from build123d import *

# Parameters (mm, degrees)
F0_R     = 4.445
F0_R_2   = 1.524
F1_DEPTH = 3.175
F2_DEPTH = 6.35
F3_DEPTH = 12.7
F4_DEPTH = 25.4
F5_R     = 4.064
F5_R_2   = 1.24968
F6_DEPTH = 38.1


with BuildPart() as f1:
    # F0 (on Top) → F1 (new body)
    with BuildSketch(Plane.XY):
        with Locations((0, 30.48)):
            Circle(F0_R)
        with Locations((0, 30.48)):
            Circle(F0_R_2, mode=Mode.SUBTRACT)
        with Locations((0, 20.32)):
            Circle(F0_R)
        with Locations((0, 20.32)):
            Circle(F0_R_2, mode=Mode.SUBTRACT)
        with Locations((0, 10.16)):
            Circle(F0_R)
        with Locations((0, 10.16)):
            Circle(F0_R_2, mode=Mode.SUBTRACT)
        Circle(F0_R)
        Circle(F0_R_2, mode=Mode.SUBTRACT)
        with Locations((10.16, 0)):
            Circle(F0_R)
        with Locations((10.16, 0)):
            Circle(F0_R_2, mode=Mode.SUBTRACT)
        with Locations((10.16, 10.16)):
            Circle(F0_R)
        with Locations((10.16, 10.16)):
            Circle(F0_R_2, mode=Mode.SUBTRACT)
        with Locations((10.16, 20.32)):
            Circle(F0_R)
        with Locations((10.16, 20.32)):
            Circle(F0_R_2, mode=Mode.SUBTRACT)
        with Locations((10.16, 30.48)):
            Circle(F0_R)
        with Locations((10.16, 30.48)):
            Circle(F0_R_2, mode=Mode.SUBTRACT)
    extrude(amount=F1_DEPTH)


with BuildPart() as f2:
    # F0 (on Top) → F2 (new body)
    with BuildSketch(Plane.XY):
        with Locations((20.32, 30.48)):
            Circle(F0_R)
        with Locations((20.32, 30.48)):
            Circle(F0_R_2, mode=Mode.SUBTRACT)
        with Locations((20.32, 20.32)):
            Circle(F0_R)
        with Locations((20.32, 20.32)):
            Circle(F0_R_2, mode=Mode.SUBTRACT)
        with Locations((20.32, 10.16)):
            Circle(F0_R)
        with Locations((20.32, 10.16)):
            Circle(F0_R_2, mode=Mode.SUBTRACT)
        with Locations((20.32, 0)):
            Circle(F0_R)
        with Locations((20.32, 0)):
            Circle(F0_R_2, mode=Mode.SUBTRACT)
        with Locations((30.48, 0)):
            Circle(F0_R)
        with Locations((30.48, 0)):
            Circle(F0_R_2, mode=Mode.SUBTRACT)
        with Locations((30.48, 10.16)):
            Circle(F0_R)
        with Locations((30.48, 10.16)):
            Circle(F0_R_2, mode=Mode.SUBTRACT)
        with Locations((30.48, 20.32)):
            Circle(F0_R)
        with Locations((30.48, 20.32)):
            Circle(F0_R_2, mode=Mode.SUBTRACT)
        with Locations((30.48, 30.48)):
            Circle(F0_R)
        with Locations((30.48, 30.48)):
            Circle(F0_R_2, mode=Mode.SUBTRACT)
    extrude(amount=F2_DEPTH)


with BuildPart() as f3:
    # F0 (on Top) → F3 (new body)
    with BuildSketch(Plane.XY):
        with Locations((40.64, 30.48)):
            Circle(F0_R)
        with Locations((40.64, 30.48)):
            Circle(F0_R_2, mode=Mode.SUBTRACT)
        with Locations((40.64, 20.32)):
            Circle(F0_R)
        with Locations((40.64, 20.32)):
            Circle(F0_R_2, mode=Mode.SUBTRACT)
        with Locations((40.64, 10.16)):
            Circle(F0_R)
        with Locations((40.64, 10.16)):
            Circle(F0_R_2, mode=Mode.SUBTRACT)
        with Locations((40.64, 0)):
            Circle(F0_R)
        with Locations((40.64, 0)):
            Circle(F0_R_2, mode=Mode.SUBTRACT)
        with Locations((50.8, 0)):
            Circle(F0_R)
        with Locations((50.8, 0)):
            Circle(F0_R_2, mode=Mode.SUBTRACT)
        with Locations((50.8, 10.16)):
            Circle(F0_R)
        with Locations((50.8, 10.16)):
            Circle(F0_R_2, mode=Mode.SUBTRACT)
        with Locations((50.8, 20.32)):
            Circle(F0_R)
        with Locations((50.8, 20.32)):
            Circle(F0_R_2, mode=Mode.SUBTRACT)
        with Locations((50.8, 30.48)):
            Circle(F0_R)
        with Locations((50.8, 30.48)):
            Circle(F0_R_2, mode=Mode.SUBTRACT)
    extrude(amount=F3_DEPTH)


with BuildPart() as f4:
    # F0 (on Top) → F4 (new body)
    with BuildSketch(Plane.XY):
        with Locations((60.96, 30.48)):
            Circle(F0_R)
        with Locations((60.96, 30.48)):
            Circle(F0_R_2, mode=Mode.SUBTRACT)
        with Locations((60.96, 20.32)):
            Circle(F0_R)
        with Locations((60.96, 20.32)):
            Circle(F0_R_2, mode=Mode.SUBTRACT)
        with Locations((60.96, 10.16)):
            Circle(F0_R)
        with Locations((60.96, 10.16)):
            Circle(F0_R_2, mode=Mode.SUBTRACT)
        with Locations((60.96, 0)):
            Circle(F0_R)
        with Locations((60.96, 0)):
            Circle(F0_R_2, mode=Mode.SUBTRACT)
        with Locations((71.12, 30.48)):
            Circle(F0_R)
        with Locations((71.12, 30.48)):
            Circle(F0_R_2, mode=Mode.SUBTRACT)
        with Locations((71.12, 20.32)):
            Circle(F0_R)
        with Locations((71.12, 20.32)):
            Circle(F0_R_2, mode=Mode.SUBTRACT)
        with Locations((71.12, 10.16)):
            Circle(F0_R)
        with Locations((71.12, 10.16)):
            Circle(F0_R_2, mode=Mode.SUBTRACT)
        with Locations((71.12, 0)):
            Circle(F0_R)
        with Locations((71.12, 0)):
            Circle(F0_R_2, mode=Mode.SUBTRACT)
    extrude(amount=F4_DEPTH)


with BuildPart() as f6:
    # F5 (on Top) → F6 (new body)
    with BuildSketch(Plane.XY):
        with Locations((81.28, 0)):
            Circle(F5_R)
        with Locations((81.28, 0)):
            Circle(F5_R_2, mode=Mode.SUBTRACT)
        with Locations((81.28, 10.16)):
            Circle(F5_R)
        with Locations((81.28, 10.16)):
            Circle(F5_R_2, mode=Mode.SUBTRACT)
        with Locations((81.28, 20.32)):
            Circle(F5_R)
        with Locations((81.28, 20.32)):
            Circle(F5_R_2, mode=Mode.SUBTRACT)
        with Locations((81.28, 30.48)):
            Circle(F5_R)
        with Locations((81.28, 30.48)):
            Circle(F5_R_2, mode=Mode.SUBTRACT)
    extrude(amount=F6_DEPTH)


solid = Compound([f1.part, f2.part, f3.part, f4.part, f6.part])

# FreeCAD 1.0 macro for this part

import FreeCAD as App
import Part
import Sketcher
Q = App.Units.Quantity

doc = App.newDocument("Part")
body = doc.addObject("PartDesign::Body", "Body")
body.AllowCompound = True

# Sketch on XY plane
sketch1 = body.newObject("Sketcher::SketchObject", "Sketch")
sketch1.AttachmentSupport = (doc.getObject("XY_Plane"), [""])
sketch1.MapMode = "FlatFace"
sketch1.addGeometry([
    Part.Circle(App.Vector(0, 30.5, 0), App.Vector(0, 0, 1), 4.4),  # 0
    Part.Circle(App.Vector(0, 30.5, 0), App.Vector(0, 0, 1), 1.5),  # 1
    Part.Circle(App.Vector(0, 20.3, 0), App.Vector(0, 0, 1), 4.4),  # 2
    Part.Circle(App.Vector(0, 20.3, 0), App.Vector(0, 0, 1), 1.5),  # 3
    Part.Circle(App.Vector(0, 10.2, 0), App.Vector(0, 0, 1), 4.4),  # 4
    Part.Circle(App.Vector(0, 10.2, 0), App.Vector(0, 0, 1), 1.5),  # 5
    Part.Circle(App.Vector(0, 0, 0), App.Vector(0, 0, 1), 4.4),  # 6
    Part.Circle(App.Vector(0, 0, 0), App.Vector(0, 0, 1), 1.5),  # 7
    Part.Circle(App.Vector(10.2, 0, 0), App.Vector(0, 0, 1), 4.4),  # 8
    Part.Circle(App.Vector(10.2, 0, 0), App.Vector(0, 0, 1), 1.5),  # 9
    Part.Circle(App.Vector(10.2, 10.2, 0), App.Vector(0, 0, 1), 4.4),  # 10
    Part.Circle(App.Vector(10.2, 10.2, 0), App.Vector(0, 0, 1), 1.5),  # 11
    Part.Circle(App.Vector(10.2, 20.3, 0), App.Vector(0, 0, 1), 4.4),  # 12
    Part.Circle(App.Vector(10.2, 20.3, 0), App.Vector(0, 0, 1), 1.5),  # 13
    Part.Circle(App.Vector(10.2, 30.5, 0), App.Vector(0, 0, 1), 4.4),  # 14
    Part.Circle(App.Vector(10.2, 30.5, 0), App.Vector(0, 0, 1), 1.5),  # 15
], False)
sketch1.addConstraint([
    Sketcher.Constraint("Coincident", 6, 3, -1, 1),
    Sketcher.Constraint("Coincident", 7, 3, -1, 1),
    Sketcher.Constraint("Coincident", 1, 3, 0, 3),
    Sketcher.Constraint("Coincident", 3, 3, 2, 3),
    Sketcher.Constraint("Coincident", 5, 3, 4, 3),
    Sketcher.Constraint("Coincident", 9, 3, 8, 3),
    Sketcher.Constraint("Coincident", 11, 3, 10, 3),
    Sketcher.Constraint("Coincident", 13, 3, 12, 3),
    Sketcher.Constraint("Coincident", 15, 3, 14, 3),
    Sketcher.Constraint("Equal", 0, 2),
    Sketcher.Constraint("Equal", 1, 3),
    Sketcher.Constraint("Equal", 2, 4),
    Sketcher.Constraint("Equal", 3, 5),
    Sketcher.Constraint("Equal", 4, 6),
    Sketcher.Constraint("Equal", 5, 7),
    Sketcher.Constraint("Equal", 6, 8),
    Sketcher.Constraint("Equal", 7, 9),
    Sketcher.Constraint("Equal", 8, 10),
    Sketcher.Constraint("Equal", 9, 11),
    Sketcher.Constraint("Equal", 10, 12),
    Sketcher.Constraint("Equal", 11, 13),
    Sketcher.Constraint("Equal", 12, 14),
    Sketcher.Constraint("Equal", 13, 15),
    Sketcher.Constraint("PointOnObject", 0, 3, -2),
    Sketcher.Constraint("PointOnObject", 2, 3, -2),
    Sketcher.Constraint("PointOnObject", 4, 3, -2),
    Sketcher.Constraint("PointOnObject", 8, 3, -1),
    Sketcher.Constraint("Horizontal", 5, 3, 10, 3),
    Sketcher.Constraint("Horizontal", 3, 3, 12, 3),
    Sketcher.Constraint("Horizontal", 1, 3, 14, 3),
    Sketcher.Constraint("Vertical", 9, 3, 10, 3),
    Sketcher.Constraint("Vertical", 11, 3, 12, 3),
    Sketcher.Constraint("Vertical", 13, 3, 14, 3),
    Sketcher.Constraint("Diameter", 0, Q("0.35 in")),
    Sketcher.Constraint("Diameter", 1, Q("0.12 in")),
    Sketcher.Constraint("DistanceY", -1, 1, 0, 3, Q("1.2 in")),
    Sketcher.Constraint("DistanceY", -1, 1, 2, 3, Q("0.8 in")),
    Sketcher.Constraint("DistanceY", -1, 1, 4, 3, Q("0.4 in")),
    Sketcher.Constraint("DistanceX", -1, 1, 8, 3, Q("0.4 in")),
])
pad1 = body.newObject("PartDesign::Pad", "Pad")
pad1.Profile = sketch1
pad1.Length = Q("0.125 in")
body2 = doc.addObject("PartDesign::Body", "Body001")
body2.AllowCompound = True

# Sketch on XY plane
sketch2 = body2.newObject("Sketcher::SketchObject", "Sketch001")
sketch2.AttachmentSupport = (doc.getObject("XY_Plane001"), [""])
sketch2.MapMode = "FlatFace"
sketch2.addGeometry([
    Part.Circle(App.Vector(20.3, 30.5, 0), App.Vector(0, 0, 1), 4.4),  # 0
    Part.Circle(App.Vector(20.3, 30.5, 0), App.Vector(0, 0, 1), 1.5),  # 1
    Part.Circle(App.Vector(20.3, 20.3, 0), App.Vector(0, 0, 1), 4.4),  # 2
    Part.Circle(App.Vector(20.3, 20.3, 0), App.Vector(0, 0, 1), 1.5),  # 3
    Part.Circle(App.Vector(20.3, 10.2, 0), App.Vector(0, 0, 1), 4.4),  # 4
    Part.Circle(App.Vector(20.3, 10.2, 0), App.Vector(0, 0, 1), 1.5),  # 5
    Part.Circle(App.Vector(20.3, 0, 0), App.Vector(0, 0, 1), 4.4),  # 6
    Part.Circle(App.Vector(20.3, 0, 0), App.Vector(0, 0, 1), 1.5),  # 7
    Part.Circle(App.Vector(30.5, 0, 0), App.Vector(0, 0, 1), 4.4),  # 8
    Part.Circle(App.Vector(30.5, 0, 0), App.Vector(0, 0, 1), 1.5),  # 9
    Part.Circle(App.Vector(30.5, 10.2, 0), App.Vector(0, 0, 1), 4.4),  # 10
    Part.Circle(App.Vector(30.5, 10.2, 0), App.Vector(0, 0, 1), 1.5),  # 11
    Part.Circle(App.Vector(30.5, 20.3, 0), App.Vector(0, 0, 1), 4.4),  # 12
    Part.Circle(App.Vector(30.5, 20.3, 0), App.Vector(0, 0, 1), 1.5),  # 13
    Part.Circle(App.Vector(30.5, 30.5, 0), App.Vector(0, 0, 1), 4.4),  # 14
    Part.Circle(App.Vector(30.5, 30.5, 0), App.Vector(0, 0, 1), 1.5),  # 15
], False)
sketch2.addConstraint([
    Sketcher.Constraint("Coincident", 1, 3, 0, 3),
    Sketcher.Constraint("Coincident", 3, 3, 2, 3),
    Sketcher.Constraint("Coincident", 5, 3, 4, 3),
    Sketcher.Constraint("Coincident", 7, 3, 6, 3),
    Sketcher.Constraint("Coincident", 9, 3, 8, 3),
    Sketcher.Constraint("Coincident", 11, 3, 10, 3),
    Sketcher.Constraint("Coincident", 13, 3, 12, 3),
    Sketcher.Constraint("Coincident", 15, 3, 14, 3),
    Sketcher.Constraint("Equal", 0, 2),
    Sketcher.Constraint("Equal", 1, 3),
    Sketcher.Constraint("Equal", 2, 4),
    Sketcher.Constraint("Equal", 3, 5),
    Sketcher.Constraint("Equal", 4, 6),
    Sketcher.Constraint("Equal", 5, 7),
    Sketcher.Constraint("Equal", 6, 8),
    Sketcher.Constraint("Equal", 7, 9),
    Sketcher.Constraint("Equal", 8, 10),
    Sketcher.Constraint("Equal", 9, 11),
    Sketcher.Constraint("Equal", 10, 12),
    Sketcher.Constraint("Equal", 11, 13),
    Sketcher.Constraint("Equal", 12, 14),
    Sketcher.Constraint("Equal", 13, 15),
    Sketcher.Constraint("PointOnObject", 6, 3, -1),
    Sketcher.Constraint("PointOnObject", 8, 3, -1),
    Sketcher.Constraint("Horizontal", 5, 3, 10, 3),
    Sketcher.Constraint("Horizontal", 3, 3, 12, 3),
    Sketcher.Constraint("Horizontal", 1, 3, 14, 3),
    Sketcher.Constraint("Vertical", 1, 3, 2, 3),
    Sketcher.Constraint("Vertical", 3, 3, 4, 3),
    Sketcher.Constraint("Vertical", 5, 3, 6, 3),
    Sketcher.Constraint("Vertical", 9, 3, 10, 3),
    Sketcher.Constraint("Vertical", 11, 3, 12, 3),
    Sketcher.Constraint("Vertical", 13, 3, 14, 3),
    Sketcher.Constraint("Diameter", 0, Q("0.35 in")),
    Sketcher.Constraint("Diameter", 1, Q("0.12 in")),
    Sketcher.Constraint("DistanceX", -1, 1, 0, 3, Q("0.8 in")),
    Sketcher.Constraint("DistanceY", -1, 1, 0, 3, Q("1.2 in")),
    Sketcher.Constraint("DistanceY", -1, 1, 2, 3, Q("0.8 in")),
    Sketcher.Constraint("DistanceY", -1, 1, 4, 3, Q("0.4 in")),
    Sketcher.Constraint("DistanceX", -1, 1, 8, 3, Q("1.2 in")),
])
pad2 = body2.newObject("PartDesign::Pad", "Pad001")
pad2.Profile = sketch2
pad2.Length = Q("0.25 in")
body3 = doc.addObject("PartDesign::Body", "Body002")
body3.AllowCompound = True

# Sketch on XY plane
sketch3 = body3.newObject("Sketcher::SketchObject", "Sketch002")
sketch3.AttachmentSupport = (doc.getObject("XY_Plane002"), [""])
sketch3.MapMode = "FlatFace"
sketch3.addGeometry([
    Part.Circle(App.Vector(40.6, 30.5, 0), App.Vector(0, 0, 1), 4.4),  # 0
    Part.Circle(App.Vector(40.6, 30.5, 0), App.Vector(0, 0, 1), 1.5),  # 1
    Part.Circle(App.Vector(40.6, 20.3, 0), App.Vector(0, 0, 1), 4.4),  # 2
    Part.Circle(App.Vector(40.6, 20.3, 0), App.Vector(0, 0, 1), 1.5),  # 3
    Part.Circle(App.Vector(40.6, 10.2, 0), App.Vector(0, 0, 1), 4.4),  # 4
    Part.Circle(App.Vector(40.6, 10.2, 0), App.Vector(0, 0, 1), 1.5),  # 5
    Part.Circle(App.Vector(40.6, 0, 0), App.Vector(0, 0, 1), 4.4),  # 6
    Part.Circle(App.Vector(40.6, 0, 0), App.Vector(0, 0, 1), 1.5),  # 7
    Part.Circle(App.Vector(50.8, 0, 0), App.Vector(0, 0, 1), 4.4),  # 8
    Part.Circle(App.Vector(50.8, 0, 0), App.Vector(0, 0, 1), 1.5),  # 9
    Part.Circle(App.Vector(50.8, 10.2, 0), App.Vector(0, 0, 1), 4.4),  # 10
    Part.Circle(App.Vector(50.8, 10.2, 0), App.Vector(0, 0, 1), 1.5),  # 11
    Part.Circle(App.Vector(50.8, 20.3, 0), App.Vector(0, 0, 1), 4.4),  # 12
    Part.Circle(App.Vector(50.8, 20.3, 0), App.Vector(0, 0, 1), 1.5),  # 13
    Part.Circle(App.Vector(50.8, 30.5, 0), App.Vector(0, 0, 1), 4.4),  # 14
    Part.Circle(App.Vector(50.8, 30.5, 0), App.Vector(0, 0, 1), 1.5),  # 15
], False)
sketch3.addConstraint([
    Sketcher.Constraint("Coincident", 1, 3, 0, 3),
    Sketcher.Constraint("Coincident", 3, 3, 2, 3),
    Sketcher.Constraint("Coincident", 5, 3, 4, 3),
    Sketcher.Constraint("Coincident", 7, 3, 6, 3),
    Sketcher.Constraint("Coincident", 9, 3, 8, 3),
    Sketcher.Constraint("Coincident", 11, 3, 10, 3),
    Sketcher.Constraint("Coincident", 13, 3, 12, 3),
    Sketcher.Constraint("Coincident", 15, 3, 14, 3),
    Sketcher.Constraint("Equal", 0, 2),
    Sketcher.Constraint("Equal", 1, 3),
    Sketcher.Constraint("Equal", 2, 4),
    Sketcher.Constraint("Equal", 3, 5),
    Sketcher.Constraint("Equal", 4, 6),
    Sketcher.Constraint("Equal", 5, 7),
    Sketcher.Constraint("Equal", 6, 8),
    Sketcher.Constraint("Equal", 7, 9),
    Sketcher.Constraint("Equal", 8, 10),
    Sketcher.Constraint("Equal", 9, 11),
    Sketcher.Constraint("Equal", 10, 12),
    Sketcher.Constraint("Equal", 11, 13),
    Sketcher.Constraint("Equal", 12, 14),
    Sketcher.Constraint("Equal", 13, 15),
    Sketcher.Constraint("PointOnObject", 6, 3, -1),
    Sketcher.Constraint("PointOnObject", 8, 3, -1),
    Sketcher.Constraint("Horizontal", 5, 3, 10, 3),
    Sketcher.Constraint("Horizontal", 3, 3, 12, 3),
    Sketcher.Constraint("Horizontal", 1, 3, 14, 3),
    Sketcher.Constraint("Vertical", 1, 3, 2, 3),
    Sketcher.Constraint("Vertical", 3, 3, 4, 3),
    Sketcher.Constraint("Vertical", 5, 3, 6, 3),
    Sketcher.Constraint("Vertical", 9, 3, 10, 3),
    Sketcher.Constraint("Vertical", 11, 3, 12, 3),
    Sketcher.Constraint("Vertical", 13, 3, 14, 3),
    Sketcher.Constraint("Diameter", 0, Q("0.35 in")),
    Sketcher.Constraint("Diameter", 1, Q("0.12 in")),
    Sketcher.Constraint("DistanceX", -1, 1, 8, 3, Q("2 in")),
    Sketcher.Constraint("DistanceX", -1, 1, 0, 3, Q("1.6 in")),
    Sketcher.Constraint("DistanceY", -1, 1, 0, 3, Q("1.2 in")),
    Sketcher.Constraint("DistanceY", -1, 1, 2, 3, Q("0.8 in")),
    Sketcher.Constraint("DistanceY", -1, 1, 4, 3, Q("0.4 in")),
])
pad3 = body3.newObject("PartDesign::Pad", "Pad002")
pad3.Profile = sketch3
pad3.Length = Q("0.5 in")
body4 = doc.addObject("PartDesign::Body", "Body003")
body4.AllowCompound = True

# Sketch on XY plane
sketch4 = body4.newObject("Sketcher::SketchObject", "Sketch003")
sketch4.AttachmentSupport = (doc.getObject("XY_Plane003"), [""])
sketch4.MapMode = "FlatFace"
sketch4.addGeometry([
    Part.Circle(App.Vector(61, 30.5, 0), App.Vector(0, 0, 1), 4.4),  # 0
    Part.Circle(App.Vector(61, 30.5, 0), App.Vector(0, 0, 1), 1.5),  # 1
    Part.Circle(App.Vector(61, 20.3, 0), App.Vector(0, 0, 1), 4.4),  # 2
    Part.Circle(App.Vector(61, 20.3, 0), App.Vector(0, 0, 1), 1.5),  # 3
    Part.Circle(App.Vector(61, 10.2, 0), App.Vector(0, 0, 1), 4.4),  # 4
    Part.Circle(App.Vector(61, 10.2, 0), App.Vector(0, 0, 1), 1.5),  # 5
    Part.Circle(App.Vector(61, 0, 0), App.Vector(0, 0, 1), 4.4),  # 6
    Part.Circle(App.Vector(61, 0, 0), App.Vector(0, 0, 1), 1.5),  # 7
    Part.Circle(App.Vector(71.1, 30.5, 0), App.Vector(0, 0, 1), 4.4),  # 8
    Part.Circle(App.Vector(71.1, 30.5, 0), App.Vector(0, 0, 1), 1.5),  # 9
    Part.Circle(App.Vector(71.1, 20.3, 0), App.Vector(0, 0, 1), 4.4),  # 10
    Part.Circle(App.Vector(71.1, 20.3, 0), App.Vector(0, 0, 1), 1.5),  # 11
    Part.Circle(App.Vector(71.1, 10.2, 0), App.Vector(0, 0, 1), 4.4),  # 12
    Part.Circle(App.Vector(71.1, 10.2, 0), App.Vector(0, 0, 1), 1.5),  # 13
    Part.Circle(App.Vector(71.1, 0, 0), App.Vector(0, 0, 1), 4.4),  # 14
    Part.Circle(App.Vector(71.1, 0, 0), App.Vector(0, 0, 1), 1.5),  # 15
], False)
sketch4.addConstraint([
    Sketcher.Constraint("Coincident", 1, 3, 0, 3),
    Sketcher.Constraint("Coincident", 3, 3, 2, 3),
    Sketcher.Constraint("Coincident", 5, 3, 4, 3),
    Sketcher.Constraint("Coincident", 7, 3, 6, 3),
    Sketcher.Constraint("Coincident", 9, 3, 8, 3),
    Sketcher.Constraint("Coincident", 11, 3, 10, 3),
    Sketcher.Constraint("Coincident", 13, 3, 12, 3),
    Sketcher.Constraint("Coincident", 15, 3, 14, 3),
    Sketcher.Constraint("Equal", 0, 2),
    Sketcher.Constraint("Equal", 1, 3),
    Sketcher.Constraint("Equal", 2, 4),
    Sketcher.Constraint("Equal", 3, 5),
    Sketcher.Constraint("Equal", 4, 6),
    Sketcher.Constraint("Equal", 5, 7),
    Sketcher.Constraint("Equal", 6, 8),
    Sketcher.Constraint("Equal", 7, 9),
    Sketcher.Constraint("Equal", 8, 10),
    Sketcher.Constraint("Equal", 9, 11),
    Sketcher.Constraint("Equal", 10, 12),
    Sketcher.Constraint("Equal", 11, 13),
    Sketcher.Constraint("Equal", 12, 14),
    Sketcher.Constraint("Equal", 13, 15),
    Sketcher.Constraint("PointOnObject", 6, 3, -1),
    Sketcher.Constraint("PointOnObject", 14, 3, -1),
    Sketcher.Constraint("Horizontal", 1, 3, 8, 3),
    Sketcher.Constraint("Horizontal", 3, 3, 10, 3),
    Sketcher.Constraint("Horizontal", 5, 3, 12, 3),
    Sketcher.Constraint("Vertical", 1, 3, 2, 3),
    Sketcher.Constraint("Vertical", 3, 3, 4, 3),
    Sketcher.Constraint("Vertical", 5, 3, 6, 3),
    Sketcher.Constraint("Vertical", 9, 3, 10, 3),
    Sketcher.Constraint("Vertical", 11, 3, 12, 3),
    Sketcher.Constraint("Vertical", 13, 3, 14, 3),
    Sketcher.Constraint("Diameter", 0, Q("0.35 in")),
    Sketcher.Constraint("Diameter", 1, Q("0.12 in")),
    Sketcher.Constraint("DistanceX", -1, 1, 0, 3, Q("2.4 in")),
    Sketcher.Constraint("DistanceY", -1, 1, 0, 3, Q("1.2 in")),
    Sketcher.Constraint("DistanceY", -1, 1, 2, 3, Q("0.8 in")),
    Sketcher.Constraint("DistanceY", -1, 1, 4, 3, Q("0.4 in")),
    Sketcher.Constraint("DistanceX", -1, 1, 8, 3, Q("2.8 in")),
])
pad4 = body4.newObject("PartDesign::Pad", "Pad003")
pad4.Profile = sketch4
pad4.Length = Q("1 in")
body5 = doc.addObject("PartDesign::Body", "Body004")
body5.AllowCompound = True

# Sketch on XY plane
sketch5 = body5.newObject("Sketcher::SketchObject", "Sketch004")
sketch5.AttachmentSupport = (doc.getObject("XY_Plane004"), [""])
sketch5.MapMode = "FlatFace"
sketch5.addGeometry([
    Part.Circle(App.Vector(81.3, 0, 0), App.Vector(0, 0, 1), 4.1),  # 0
    Part.Circle(App.Vector(81.3, 0, 0), App.Vector(0, 0, 1), 1.2),  # 1
    Part.Circle(App.Vector(81.3, 10.2, 0), App.Vector(0, 0, 1), 4.1),  # 2
    Part.Circle(App.Vector(81.3, 10.2, 0), App.Vector(0, 0, 1), 1.2),  # 3
    Part.Circle(App.Vector(81.3, 20.3, 0), App.Vector(0, 0, 1), 4.1),  # 4
    Part.Circle(App.Vector(81.3, 20.3, 0), App.Vector(0, 0, 1), 1.2),  # 5
    Part.Circle(App.Vector(81.3, 30.5, 0), App.Vector(0, 0, 1), 4.1),  # 6
    Part.Circle(App.Vector(81.3, 30.5, 0), App.Vector(0, 0, 1), 1.2),  # 7
], False)
sketch5.addConstraint([
    Sketcher.Constraint("Coincident", 1, 3, 0, 3),
    Sketcher.Constraint("Coincident", 3, 3, 2, 3),
    Sketcher.Constraint("Coincident", 5, 3, 4, 3),
    Sketcher.Constraint("Coincident", 7, 3, 6, 3),
    Sketcher.Constraint("Equal", 0, 2),
    Sketcher.Constraint("Equal", 1, 3),
    Sketcher.Constraint("Equal", 2, 4),
    Sketcher.Constraint("Equal", 3, 5),
    Sketcher.Constraint("Equal", 4, 6),
    Sketcher.Constraint("Equal", 5, 7),
    Sketcher.Constraint("PointOnObject", 0, 3, -1),
    Sketcher.Constraint("Vertical", 1, 3, 2, 3),
    Sketcher.Constraint("Vertical", 3, 3, 4, 3),
    Sketcher.Constraint("Vertical", 5, 3, 6, 3),
    Sketcher.Constraint("Diameter", 0, Q("0.32 in")),
    Sketcher.Constraint("Diameter", 1, Q("0.0984 in")),
    Sketcher.Constraint("DistanceX", -1, 1, 0, 3, Q("3.2 in")),
    Sketcher.Constraint("DistanceY", -1, 1, 2, 3, Q("0.4 in")),
    Sketcher.Constraint("DistanceY", -1, 1, 4, 3, Q("0.8 in")),
    Sketcher.Constraint("DistanceY", -1, 1, 6, 3, Q("1.2 in")),
])
pad5 = body5.newObject("PartDesign::Pad", "Pad004")
pad5.Profile = sketch5
pad5.Length = Q("1.5 in")

doc.recompute()
